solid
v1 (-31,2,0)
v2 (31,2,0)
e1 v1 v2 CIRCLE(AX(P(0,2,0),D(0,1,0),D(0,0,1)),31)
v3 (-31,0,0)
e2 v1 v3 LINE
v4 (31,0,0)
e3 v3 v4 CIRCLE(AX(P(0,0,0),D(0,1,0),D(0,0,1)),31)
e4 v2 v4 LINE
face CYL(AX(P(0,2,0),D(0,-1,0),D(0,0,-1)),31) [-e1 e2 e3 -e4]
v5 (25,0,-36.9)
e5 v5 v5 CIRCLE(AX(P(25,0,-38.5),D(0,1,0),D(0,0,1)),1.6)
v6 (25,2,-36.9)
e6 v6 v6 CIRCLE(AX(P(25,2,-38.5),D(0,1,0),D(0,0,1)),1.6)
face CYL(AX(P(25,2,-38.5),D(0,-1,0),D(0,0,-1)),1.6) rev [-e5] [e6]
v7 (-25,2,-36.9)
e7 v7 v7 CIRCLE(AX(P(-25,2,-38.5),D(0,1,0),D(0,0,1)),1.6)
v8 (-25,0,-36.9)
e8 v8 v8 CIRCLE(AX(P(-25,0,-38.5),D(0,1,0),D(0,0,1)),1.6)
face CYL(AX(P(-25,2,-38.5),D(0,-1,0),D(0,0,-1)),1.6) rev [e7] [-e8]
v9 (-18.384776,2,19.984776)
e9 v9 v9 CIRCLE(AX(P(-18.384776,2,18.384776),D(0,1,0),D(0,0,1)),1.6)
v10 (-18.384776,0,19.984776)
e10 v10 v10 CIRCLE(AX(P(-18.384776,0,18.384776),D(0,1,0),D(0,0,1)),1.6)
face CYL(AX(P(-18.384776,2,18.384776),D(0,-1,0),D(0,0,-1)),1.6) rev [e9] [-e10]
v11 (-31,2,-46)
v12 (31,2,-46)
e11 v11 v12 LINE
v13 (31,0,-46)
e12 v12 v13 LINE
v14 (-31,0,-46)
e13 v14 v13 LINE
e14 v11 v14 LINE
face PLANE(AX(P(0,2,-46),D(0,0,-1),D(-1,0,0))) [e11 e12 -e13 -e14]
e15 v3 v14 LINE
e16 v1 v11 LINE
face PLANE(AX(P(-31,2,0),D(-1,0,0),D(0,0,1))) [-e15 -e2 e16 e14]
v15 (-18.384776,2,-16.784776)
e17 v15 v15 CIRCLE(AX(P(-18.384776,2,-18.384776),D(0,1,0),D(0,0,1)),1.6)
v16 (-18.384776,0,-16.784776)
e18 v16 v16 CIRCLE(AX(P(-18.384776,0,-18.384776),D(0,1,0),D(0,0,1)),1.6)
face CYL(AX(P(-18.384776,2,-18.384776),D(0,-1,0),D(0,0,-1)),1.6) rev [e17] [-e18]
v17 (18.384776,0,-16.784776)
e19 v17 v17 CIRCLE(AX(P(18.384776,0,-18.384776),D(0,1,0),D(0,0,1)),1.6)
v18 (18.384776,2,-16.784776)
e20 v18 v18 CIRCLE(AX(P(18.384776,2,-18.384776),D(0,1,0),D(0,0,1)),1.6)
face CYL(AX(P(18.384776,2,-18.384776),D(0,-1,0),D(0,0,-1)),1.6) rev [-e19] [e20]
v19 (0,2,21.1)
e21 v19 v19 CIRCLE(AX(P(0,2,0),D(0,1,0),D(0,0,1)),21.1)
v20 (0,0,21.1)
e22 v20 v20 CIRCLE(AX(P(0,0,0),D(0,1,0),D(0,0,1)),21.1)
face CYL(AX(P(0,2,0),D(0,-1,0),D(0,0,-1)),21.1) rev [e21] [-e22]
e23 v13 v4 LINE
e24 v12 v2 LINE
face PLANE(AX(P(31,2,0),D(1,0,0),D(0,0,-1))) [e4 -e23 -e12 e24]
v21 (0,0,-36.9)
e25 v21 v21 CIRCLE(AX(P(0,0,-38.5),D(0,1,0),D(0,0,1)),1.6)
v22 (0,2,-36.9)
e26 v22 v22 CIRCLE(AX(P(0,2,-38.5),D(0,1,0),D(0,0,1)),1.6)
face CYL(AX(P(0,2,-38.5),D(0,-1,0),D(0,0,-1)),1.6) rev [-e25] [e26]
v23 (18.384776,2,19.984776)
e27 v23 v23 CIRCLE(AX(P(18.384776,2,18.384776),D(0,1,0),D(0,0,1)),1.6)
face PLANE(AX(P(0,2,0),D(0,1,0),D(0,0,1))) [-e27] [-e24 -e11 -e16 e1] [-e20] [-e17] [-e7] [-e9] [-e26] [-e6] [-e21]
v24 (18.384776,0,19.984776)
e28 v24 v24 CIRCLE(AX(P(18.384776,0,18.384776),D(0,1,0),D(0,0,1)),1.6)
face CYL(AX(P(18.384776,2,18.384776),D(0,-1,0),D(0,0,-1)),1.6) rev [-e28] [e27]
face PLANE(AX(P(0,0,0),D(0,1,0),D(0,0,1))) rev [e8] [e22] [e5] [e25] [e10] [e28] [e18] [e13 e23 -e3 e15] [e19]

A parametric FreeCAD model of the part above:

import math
import FreeCAD as App
import Part
import Sketcher
Q = App.Units.Quantity

doc = App.newDocument("Part")
params = doc.addObject("Spreadsheet::Sheet", "Params")
for row, (alias, value) in enumerate([
    ("sketch1_radius", "31 mm"),
    ("sketch1_diameter", "3.2 mm"),
    ("sketch1_diameter2", "42.2 mm"),
    ("sketch1_height", "46 mm"),
    ("pad1_length", "2 mm"),
], start=1):
    params.set(f"A{row}", alias)
    params.set(f"B{row}", "=" + value)
    params.setAlias(f"B{row}", alias)

body = doc.addObject("PartDesign::Body", "Body")

sketch1 = body.newObject("Sketcher::SketchObject", "Sketch")
sketch1.AttachmentSupport = (doc.getObject("XZ_Plane"), [""])
sketch1.MapMode = "FlatFace"
sketch1.addGeometry([
    Part.LineSegment(App.Vector(-31, -46, 0), App.Vector(-31, 0, 0)),
    Part.ArcOfCircle(Part.Circle(App.Vector(0, 0, 0), App.Vector(0, 0, 1), 31), math.radians(0), math.radians(180)),
    Part.LineSegment(App.Vector(31, 0, 0), App.Vector(31, -46, 0)),
    Part.LineSegment(App.Vector(31, -46, 0), App.Vector(-31, -46, 0)),
    Part.Circle(App.Vector(-25, -38.5, 0), App.Vector(0, 0, 1), 1.6),
    Part.Circle(App.Vector(0, -38.5, 0), App.Vector(0, 0, 1), 1.6),
    Part.Circle(App.Vector(25, -38.5, 0), App.Vector(0, 0, 1), 1.6),
    Part.Circle(App.Vector(18.4, -18.4, 0), App.Vector(0, 0, 1), 1.6),
    Part.Circle(App.Vector(-18.4, 18.4, 0), App.Vector(0, 0, 1), 1.6),
    Part.Circle(App.Vector(18.4, 18.4, 0), App.Vector(0, 0, 1), 1.6),
    Part.Circle(App.Vector(-18.4, -18.4, 0), App.Vector(0, 0, 1), 1.6),
    Part.Circle(App.Vector(0, 0, 0), App.Vector(0, 0, 1), 21.1),
], False)
sketch1.addConstraint([
    Sketcher.Constraint("Tangent", 0, 2, 1, 2),
    Sketcher.Constraint("Tangent", 1, 1, 2, 1),
    Sketcher.Constraint("Coincident", 2, 2, 3, 1),
    Sketcher.Constraint("Coincident", 3, 2, 0, 1),
    Sketcher.Constraint("Vertical", 0),
    Sketcher.Constraint("Vertical", 2),
    Sketcher.Constraint("Horizontal", 3),
    Sketcher.Constraint("Coincident", 1, 3, -1, 1),
    Sketcher.Constraint("Coincident", 11, 3, -1, 1),
    Sketcher.Constraint("Equal", 4, 5),
    Sketcher.Constraint("Equal", 5, 6),
    Sketcher.Constraint("Equal", 6, 7),
    Sketcher.Constraint("Equal", 7, 8),
    Sketcher.Constraint("Equal", 8, 9),
    Sketcher.Constraint("Equal", 9, 10),
    Sketcher.Constraint("Symmetric", 7, 3, 8, 3, -1, 1),
    Sketcher.Constraint("Symmetric", 9, 3, 10, 3, -1, 1),
    Sketcher.Constraint("Symmetric", 4, 3, 6, 3, -2),
    Sketcher.Constraint("Symmetric", 8, 3, 9, 3, -2),
    Sketcher.Constraint("PointOnObject", 5, 3, -2),
    Sketcher.Constraint("Horizontal", 4, 3, 5, 3),
    Sketcher.Constraint("Radius", 1, Q("31 mm")),
    Sketcher.Constraint("Diameter", 4, Q("3.2 mm")),
    Sketcher.Constraint("Diameter", 11, Q("42.2 mm")),
    Sketcher.Constraint("DistanceY", 0, 1, 0, 2, Q("46 mm")),
    Sketcher.Constraint("DistanceX", 4, 3, -1, 1, Q("25 mm")),
    Sketcher.Constraint("DistanceY", 4, 3, -1, 1, Q("38.5 mm")),
    Sketcher.Constraint("DistanceX", -1, 1, 7, 3, Q("18.384776 mm")),
    Sketcher.Constraint("DistanceY", 7, 3, -1, 1, Q("18.384776 mm")),
])
sketch1.setExpression("Constraints[21]", "Params.sketch1_radius")
sketch1.setExpression("Constraints[22]", "Params.sketch1_diameter")
sketch1.setExpression("Constraints[23]", "Params.sketch1_diameter2")
sketch1.setExpression("Constraints[24]", "Params.sketch1_height")
pad1 = body.newObject("PartDesign::Pad", "Pad")
pad1.Profile = sketch1
pad1.setExpression("Length", "Params.pad1_length")
pad1.Reversed = True

doc.recompute()
